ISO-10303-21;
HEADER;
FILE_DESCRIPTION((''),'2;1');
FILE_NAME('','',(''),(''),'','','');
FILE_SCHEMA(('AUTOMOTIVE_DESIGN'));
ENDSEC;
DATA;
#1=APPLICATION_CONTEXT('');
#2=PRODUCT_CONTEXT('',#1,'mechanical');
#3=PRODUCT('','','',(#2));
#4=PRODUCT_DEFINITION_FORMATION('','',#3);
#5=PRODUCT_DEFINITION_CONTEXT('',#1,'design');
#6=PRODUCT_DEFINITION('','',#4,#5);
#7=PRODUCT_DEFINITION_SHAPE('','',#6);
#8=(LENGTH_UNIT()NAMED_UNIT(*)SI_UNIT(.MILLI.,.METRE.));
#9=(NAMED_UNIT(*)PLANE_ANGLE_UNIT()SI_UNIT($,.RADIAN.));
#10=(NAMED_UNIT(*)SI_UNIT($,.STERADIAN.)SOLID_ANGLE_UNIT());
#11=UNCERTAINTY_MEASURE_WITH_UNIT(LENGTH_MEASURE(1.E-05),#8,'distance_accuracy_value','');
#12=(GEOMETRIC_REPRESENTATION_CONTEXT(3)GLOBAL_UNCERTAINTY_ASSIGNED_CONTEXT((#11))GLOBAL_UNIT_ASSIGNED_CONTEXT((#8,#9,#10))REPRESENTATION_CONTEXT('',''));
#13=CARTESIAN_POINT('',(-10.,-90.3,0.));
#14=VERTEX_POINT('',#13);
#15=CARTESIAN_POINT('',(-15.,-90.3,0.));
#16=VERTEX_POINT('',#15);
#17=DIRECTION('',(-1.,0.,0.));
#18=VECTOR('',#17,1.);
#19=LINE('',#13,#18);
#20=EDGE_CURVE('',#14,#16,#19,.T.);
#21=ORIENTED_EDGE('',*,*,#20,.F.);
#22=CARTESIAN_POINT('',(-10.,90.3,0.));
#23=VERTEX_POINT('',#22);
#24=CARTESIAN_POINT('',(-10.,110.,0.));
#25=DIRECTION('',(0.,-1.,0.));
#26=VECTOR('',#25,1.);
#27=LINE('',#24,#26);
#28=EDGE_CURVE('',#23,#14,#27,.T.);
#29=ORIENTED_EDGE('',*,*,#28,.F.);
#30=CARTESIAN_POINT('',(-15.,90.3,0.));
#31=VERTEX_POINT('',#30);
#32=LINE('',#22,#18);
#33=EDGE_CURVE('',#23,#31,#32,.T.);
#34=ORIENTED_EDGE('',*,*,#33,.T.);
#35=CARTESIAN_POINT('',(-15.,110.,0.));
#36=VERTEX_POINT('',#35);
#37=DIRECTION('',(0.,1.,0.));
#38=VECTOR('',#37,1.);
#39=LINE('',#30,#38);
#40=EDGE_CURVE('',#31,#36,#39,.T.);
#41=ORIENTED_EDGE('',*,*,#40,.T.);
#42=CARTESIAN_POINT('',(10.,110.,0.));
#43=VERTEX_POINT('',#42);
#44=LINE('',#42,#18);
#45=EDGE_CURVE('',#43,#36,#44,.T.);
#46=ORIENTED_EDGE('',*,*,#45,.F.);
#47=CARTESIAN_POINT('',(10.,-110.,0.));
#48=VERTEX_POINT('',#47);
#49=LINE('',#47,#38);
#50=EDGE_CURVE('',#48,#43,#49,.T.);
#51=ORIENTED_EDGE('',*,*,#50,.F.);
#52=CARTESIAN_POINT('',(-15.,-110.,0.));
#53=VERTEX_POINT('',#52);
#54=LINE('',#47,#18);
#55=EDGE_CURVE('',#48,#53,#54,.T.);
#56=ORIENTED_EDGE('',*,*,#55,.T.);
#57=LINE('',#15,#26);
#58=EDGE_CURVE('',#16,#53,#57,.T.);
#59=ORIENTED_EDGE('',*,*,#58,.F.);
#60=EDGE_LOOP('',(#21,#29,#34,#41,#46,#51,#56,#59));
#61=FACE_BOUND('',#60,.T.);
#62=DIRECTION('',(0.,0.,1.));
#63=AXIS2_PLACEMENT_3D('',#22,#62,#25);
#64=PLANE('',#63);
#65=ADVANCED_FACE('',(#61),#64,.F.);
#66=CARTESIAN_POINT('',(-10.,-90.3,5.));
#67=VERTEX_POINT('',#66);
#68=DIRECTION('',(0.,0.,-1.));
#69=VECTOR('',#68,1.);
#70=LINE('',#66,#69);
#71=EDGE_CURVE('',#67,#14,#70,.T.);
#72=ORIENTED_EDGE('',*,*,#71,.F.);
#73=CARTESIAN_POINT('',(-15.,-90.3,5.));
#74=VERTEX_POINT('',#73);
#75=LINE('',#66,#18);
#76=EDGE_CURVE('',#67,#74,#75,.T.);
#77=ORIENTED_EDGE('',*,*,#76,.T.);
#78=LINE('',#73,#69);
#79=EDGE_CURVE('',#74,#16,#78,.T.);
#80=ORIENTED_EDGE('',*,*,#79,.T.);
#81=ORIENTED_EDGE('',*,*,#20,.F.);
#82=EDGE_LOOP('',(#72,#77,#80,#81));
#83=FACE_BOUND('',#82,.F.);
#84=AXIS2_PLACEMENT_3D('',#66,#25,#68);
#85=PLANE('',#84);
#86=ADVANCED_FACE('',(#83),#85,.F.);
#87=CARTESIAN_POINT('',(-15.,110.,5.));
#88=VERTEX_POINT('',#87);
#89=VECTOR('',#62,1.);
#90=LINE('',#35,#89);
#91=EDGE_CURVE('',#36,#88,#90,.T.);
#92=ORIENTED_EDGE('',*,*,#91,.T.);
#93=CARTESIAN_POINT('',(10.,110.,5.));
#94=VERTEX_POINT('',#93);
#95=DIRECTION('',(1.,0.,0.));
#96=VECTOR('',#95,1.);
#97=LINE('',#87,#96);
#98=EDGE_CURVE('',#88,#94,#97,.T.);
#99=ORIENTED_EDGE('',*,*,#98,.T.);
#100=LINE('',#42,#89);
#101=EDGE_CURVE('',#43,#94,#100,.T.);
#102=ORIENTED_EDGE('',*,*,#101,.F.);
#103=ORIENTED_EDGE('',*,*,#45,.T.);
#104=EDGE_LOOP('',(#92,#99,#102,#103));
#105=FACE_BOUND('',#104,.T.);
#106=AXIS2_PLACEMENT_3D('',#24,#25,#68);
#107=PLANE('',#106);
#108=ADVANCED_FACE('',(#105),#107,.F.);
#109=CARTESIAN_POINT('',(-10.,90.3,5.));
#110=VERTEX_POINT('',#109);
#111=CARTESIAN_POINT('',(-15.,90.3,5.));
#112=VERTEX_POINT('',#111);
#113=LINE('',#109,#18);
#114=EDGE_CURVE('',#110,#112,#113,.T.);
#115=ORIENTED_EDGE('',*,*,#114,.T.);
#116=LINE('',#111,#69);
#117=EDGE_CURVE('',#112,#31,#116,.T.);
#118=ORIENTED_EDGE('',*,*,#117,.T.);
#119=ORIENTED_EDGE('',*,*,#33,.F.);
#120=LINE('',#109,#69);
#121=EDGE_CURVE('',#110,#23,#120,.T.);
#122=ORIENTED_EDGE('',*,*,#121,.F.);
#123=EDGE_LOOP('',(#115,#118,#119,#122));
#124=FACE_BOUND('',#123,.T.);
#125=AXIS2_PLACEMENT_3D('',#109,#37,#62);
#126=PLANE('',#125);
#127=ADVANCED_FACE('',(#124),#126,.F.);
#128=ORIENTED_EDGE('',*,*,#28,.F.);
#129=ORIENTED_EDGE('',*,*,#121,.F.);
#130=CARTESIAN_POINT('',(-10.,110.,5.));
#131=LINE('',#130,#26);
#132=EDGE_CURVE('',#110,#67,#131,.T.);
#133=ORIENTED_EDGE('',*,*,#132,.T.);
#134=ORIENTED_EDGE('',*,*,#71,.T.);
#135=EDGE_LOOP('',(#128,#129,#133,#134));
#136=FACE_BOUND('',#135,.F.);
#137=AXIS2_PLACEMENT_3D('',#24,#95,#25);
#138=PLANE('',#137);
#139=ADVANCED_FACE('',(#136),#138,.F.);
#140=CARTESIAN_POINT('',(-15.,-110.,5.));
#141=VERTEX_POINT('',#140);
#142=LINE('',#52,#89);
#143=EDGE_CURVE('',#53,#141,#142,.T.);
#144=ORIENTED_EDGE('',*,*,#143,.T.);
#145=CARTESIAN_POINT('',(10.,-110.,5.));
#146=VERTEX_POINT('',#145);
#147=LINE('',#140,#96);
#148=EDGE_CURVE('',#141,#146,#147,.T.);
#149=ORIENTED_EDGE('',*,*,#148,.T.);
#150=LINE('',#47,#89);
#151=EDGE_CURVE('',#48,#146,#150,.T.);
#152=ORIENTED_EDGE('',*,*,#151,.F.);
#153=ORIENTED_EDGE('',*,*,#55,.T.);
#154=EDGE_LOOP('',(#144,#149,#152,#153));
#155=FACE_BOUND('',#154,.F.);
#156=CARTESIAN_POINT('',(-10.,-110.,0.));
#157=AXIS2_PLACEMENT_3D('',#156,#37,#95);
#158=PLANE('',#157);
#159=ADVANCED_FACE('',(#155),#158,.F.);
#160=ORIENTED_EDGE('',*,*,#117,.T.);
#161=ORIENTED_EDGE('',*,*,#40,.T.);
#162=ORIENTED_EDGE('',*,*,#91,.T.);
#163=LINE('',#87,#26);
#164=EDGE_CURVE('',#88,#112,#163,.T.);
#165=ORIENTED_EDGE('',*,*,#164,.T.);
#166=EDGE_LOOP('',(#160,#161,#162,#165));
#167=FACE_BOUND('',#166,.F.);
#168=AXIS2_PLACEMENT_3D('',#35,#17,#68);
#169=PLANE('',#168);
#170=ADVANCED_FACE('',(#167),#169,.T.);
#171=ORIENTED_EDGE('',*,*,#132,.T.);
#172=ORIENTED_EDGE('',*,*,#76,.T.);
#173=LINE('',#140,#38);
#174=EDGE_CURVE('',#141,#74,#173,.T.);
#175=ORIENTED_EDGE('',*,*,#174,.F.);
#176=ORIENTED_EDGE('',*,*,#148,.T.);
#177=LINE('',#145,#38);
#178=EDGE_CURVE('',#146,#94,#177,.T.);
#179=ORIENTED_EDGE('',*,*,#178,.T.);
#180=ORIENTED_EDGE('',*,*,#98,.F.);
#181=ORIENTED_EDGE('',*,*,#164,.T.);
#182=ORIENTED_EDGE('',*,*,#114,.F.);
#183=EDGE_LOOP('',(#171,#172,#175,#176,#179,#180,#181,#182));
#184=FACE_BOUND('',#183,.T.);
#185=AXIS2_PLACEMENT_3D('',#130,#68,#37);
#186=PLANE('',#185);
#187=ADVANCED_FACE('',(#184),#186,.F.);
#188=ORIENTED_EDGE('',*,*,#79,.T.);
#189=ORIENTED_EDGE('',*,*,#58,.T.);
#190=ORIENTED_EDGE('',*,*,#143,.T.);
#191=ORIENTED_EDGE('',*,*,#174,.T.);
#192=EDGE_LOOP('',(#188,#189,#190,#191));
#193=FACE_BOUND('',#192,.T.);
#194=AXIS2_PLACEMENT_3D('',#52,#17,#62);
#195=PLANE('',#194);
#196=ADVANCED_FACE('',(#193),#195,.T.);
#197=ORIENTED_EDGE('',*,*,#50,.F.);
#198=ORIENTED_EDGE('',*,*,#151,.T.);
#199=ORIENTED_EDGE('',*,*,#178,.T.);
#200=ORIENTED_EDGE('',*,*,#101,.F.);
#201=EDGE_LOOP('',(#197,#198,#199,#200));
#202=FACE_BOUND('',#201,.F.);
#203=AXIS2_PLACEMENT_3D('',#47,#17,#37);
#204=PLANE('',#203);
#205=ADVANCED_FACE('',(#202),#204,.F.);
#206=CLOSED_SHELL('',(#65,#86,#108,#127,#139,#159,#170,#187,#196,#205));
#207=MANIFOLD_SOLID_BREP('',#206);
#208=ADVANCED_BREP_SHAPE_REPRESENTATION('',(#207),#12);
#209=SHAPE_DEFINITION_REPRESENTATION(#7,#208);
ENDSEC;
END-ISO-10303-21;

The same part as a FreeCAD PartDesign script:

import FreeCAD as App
import Part
import Sketcher


def add_polygon(sketch, points):
    """Adds a closed chain of lines whose ends are joined by coincident constraints."""
    first, n = sketch.GeometryCount, len(points)
    for a, b in zip(points, points[1:] + points[:1]):
        sketch.addGeometry(Part.LineSegment(App.Vector(*a, 0), App.Vector(*b, 0)), False)
    for i in range(n):
        sketch.addConstraint(Sketcher.Constraint("Coincident", first + i, 2, first + (i + 1) % n, 1))

doc = App.newDocument("Part")
body = doc.addObject("PartDesign::Body", "Body")

sketch1 = doc.addObject("Sketcher::SketchObject", "Sketch")
body.addObject(sketch1)
sketch1.AttachmentSupport = (doc.XY_Plane, [""])
sketch1.MapMode = "FlatFace"
add_polygon(sketch1, [(-10, 110), (-10, -110), (10, -110), (10, 110)])
sketch1.addConstraint(Sketcher.Constraint("Vertical", 0))
sketch1.addConstraint(Sketcher.Constraint("Horizontal", 1))
sketch1.addConstraint(Sketcher.Constraint("Vertical", 2))
sketch1.addConstraint(Sketcher.Constraint("Horizontal", 3))
sketch1.addConstraint(Sketcher.Constraint("Symmetric", 0, 2, 2, 2, -1, 1))
sketch1.addConstraint(Sketcher.Constraint("DistanceX", 1, 1, 1, 2, 20.0))
sketch1.addConstraint(Sketcher.Constraint("DistanceY", 0, 2, 0, 1, 220.0))
pad1 = doc.addObject("PartDesign::Pad", "Pad")
body.addObject(pad1)
pad1.Profile = sketch1
pad1.Length = 5

sketch2 = doc.addObject("Sketcher::SketchObject", "Sketch001")
body.addObject(sketch2)
sketch2.AttachmentSupport = (doc.YZ_Plane, [""])
sketch2.MapMode = "FlatFace"
sketch2.AttachmentOffset = App.Placement(App.Vector(0, 0, -10), App.Rotation())
add_polygon(sketch2, [(-110, 0), (-110, 5), (-90, 5), (-90, 0)])
sketch2.addConstraint(Sketcher.Constraint("Vertical", 0))
sketch2.addConstraint(Sketcher.Constraint("Horizontal", 1))
sketch2.addConstraint(Sketcher.Constraint("Vertical", 2))
sketch2.addConstraint(Sketcher.Constraint("Horizontal", 3))
sketch2.addConstraint(Sketcher.Constraint("PointOnObject", 2, 2, -1))
sketch2.addConstraint(Sketcher.Constraint("DistanceX", 1, 1, 1, 2, 19.7))
sketch2.addConstraint(Sketcher.Constraint("DistanceY", 0, 1, 0, 2, 5.0))
sketch2.addConstraint(Sketcher.Constraint("DistanceX", 0, 2, -1, 1, 110.0))
pad2 = doc.addObject("PartDesign::Pad", "Pad001")
body.addObject(pad2)
pad2.Profile = sketch2
pad2.Length = 5
pad2.Reversed = True
doc.recompute()

mirrored = doc.addObject("PartDesign::Mirrored", "Mirrored")
body.addObject(mirrored)
mirrored.Originals = [pad2]
mirrored.MirrorPlane = (doc.XZ_Plane, [""])
body.Tip = mirrored

doc.recompute()
